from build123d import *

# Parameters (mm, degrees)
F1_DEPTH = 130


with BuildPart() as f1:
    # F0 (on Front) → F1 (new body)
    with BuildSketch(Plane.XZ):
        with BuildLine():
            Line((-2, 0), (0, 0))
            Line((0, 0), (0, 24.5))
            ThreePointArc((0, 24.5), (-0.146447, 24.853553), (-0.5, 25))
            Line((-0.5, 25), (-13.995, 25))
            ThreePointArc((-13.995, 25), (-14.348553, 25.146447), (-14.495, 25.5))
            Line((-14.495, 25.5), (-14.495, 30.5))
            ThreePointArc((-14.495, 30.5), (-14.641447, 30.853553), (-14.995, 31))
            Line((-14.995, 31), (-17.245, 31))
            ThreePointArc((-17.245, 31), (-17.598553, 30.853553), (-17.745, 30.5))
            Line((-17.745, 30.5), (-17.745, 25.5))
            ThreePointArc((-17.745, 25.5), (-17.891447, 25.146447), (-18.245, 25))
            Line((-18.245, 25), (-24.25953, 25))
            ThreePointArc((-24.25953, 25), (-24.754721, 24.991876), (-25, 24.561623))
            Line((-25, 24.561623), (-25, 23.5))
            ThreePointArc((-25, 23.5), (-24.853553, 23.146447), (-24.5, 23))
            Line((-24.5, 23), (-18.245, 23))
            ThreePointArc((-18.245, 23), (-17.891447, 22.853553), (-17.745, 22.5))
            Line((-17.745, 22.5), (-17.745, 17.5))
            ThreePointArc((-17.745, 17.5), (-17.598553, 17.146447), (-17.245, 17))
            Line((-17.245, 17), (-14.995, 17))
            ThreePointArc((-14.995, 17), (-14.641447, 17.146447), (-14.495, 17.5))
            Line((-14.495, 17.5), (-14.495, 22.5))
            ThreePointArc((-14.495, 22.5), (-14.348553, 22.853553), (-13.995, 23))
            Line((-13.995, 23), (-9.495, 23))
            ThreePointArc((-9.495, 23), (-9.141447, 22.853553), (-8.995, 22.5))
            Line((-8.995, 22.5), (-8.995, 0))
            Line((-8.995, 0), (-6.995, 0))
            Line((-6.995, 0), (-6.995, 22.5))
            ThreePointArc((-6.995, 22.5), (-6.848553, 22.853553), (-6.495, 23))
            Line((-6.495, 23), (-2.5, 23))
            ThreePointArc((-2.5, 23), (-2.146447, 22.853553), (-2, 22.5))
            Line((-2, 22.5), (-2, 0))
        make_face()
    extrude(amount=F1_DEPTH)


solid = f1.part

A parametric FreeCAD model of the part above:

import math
import FreeCAD as App
import Part
import Sketcher

doc = App.newDocument("Part")
params = doc.addObject("Spreadsheet::Sheet", "Params")
for row, (alias, value) in enumerate([
    ("sketch1_radius", "0.500001 mm"),
    ("sketch1_width", "2 mm"),
    ("sketch1_height", "5 mm"),
    ("sketch1_width2", "4.5 mm"),
    ("sketch1_height2", "24.5 mm"),
    ("pad1_length", "130 mm"),
], start=1):
    params.set(f"A{row}", alias)
    params.set(f"B{row}", "=" + value)
    params.setAlias(f"B{row}", alias)

body = doc.addObject("PartDesign::Body", "Body")

sketch1 = body.newObject("Sketcher::SketchObject", "Sketch")
sketch1.AttachmentSupport = (doc.getObject("XZ_Plane"), [""])
sketch1.MapMode = "FlatFace"
sketch1.addGeometry([
    Part.LineSegment(App.Vector(-2, 0, 0), App.Vector(0, 0, 0)),
    Part.LineSegment(App.Vector(0, 0, 0), App.Vector(0, 24.5, 0)),
    Part.ArcOfCircle(Part.Circle(App.Vector(-0.500001, 24.499999, 0), App.Vector(0, 0, 1), 0.500001), math.radians(0.000153), math.radians(89.999847)),
    Part.LineSegment(App.Vector(-0.5, 25, 0), App.Vector(-13.995, 25, 0)),
    Part.ArcOfCircle(Part.Circle(App.Vector(-13.994999, 25.500001, 0), App.Vector(0, 0, 1), 0.500001), math.radians(-179.999847), math.radians(-90.000153)),
    Part.LineSegment(App.Vector(-14.495, 25.5, 0), App.Vector(-14.495, 30.5, 0)),
    Part.ArcOfCircle(Part.Circle(App.Vector(-14.995001, 30.499999, 0), App.Vector(0, 0, 1), 0.500001), math.radians(0.000153), math.radians(89.999847)),
    Part.LineSegment(App.Vector(-14.995, 31, 0), App.Vector(-17.245, 31, 0)),
    Part.ArcOfCircle(Part.Circle(App.Vector(-17.244999, 30.499999, 0), App.Vector(0, 0, 1), 0.500001), math.radians(90.000153), math.radians(179.999847)),
    Part.LineSegment(App.Vector(-17.745, 30.5, 0), App.Vector(-17.745, 25.5, 0)),
    Part.ArcOfCircle(Part.Circle(App.Vector(-18.245001, 25.500001, 0), App.Vector(0, 0, 1), 0.500001), math.radians(-89.999847), math.radians(-0.000153)),
    Part.LineSegment(App.Vector(-18.245, 25, 0), App.Vector(-24.25953, 25, 0)),
    Part.ArcOfCircle(Part.Circle(App.Vector(-24.5, 24.561624, 0), App.Vector(0, 0, 1), 0.5), math.radians(61.253143), math.radians(180.000073)),
    Part.LineSegment(App.Vector(-25, 24.561623, 0), App.Vector(-25, 23.5, 0)),
    Part.ArcOfCircle(Part.Circle(App.Vector(-24.499999, 23.500001, 0), App.Vector(0, 0, 1), 0.500001), math.radians(-179.999847), math.radians(-90.000153)),
    Part.LineSegment(App.Vector(-24.5, 23, 0), App.Vector(-18.245, 23, 0)),
    Part.ArcOfCircle(Part.Circle(App.Vector(-18.245001, 22.499999, 0), App.Vector(0, 0, 1), 0.500001), math.radians(0.000153), math.radians(89.999847)),
    Part.LineSegment(App.Vector(-17.745, 22.5, 0), App.Vector(-17.745, 17.5, 0)),
    Part.ArcOfCircle(Part.Circle(App.Vector(-17.244999, 17.500001, 0), App.Vector(0, 0, 1), 0.500001), math.radians(-179.999847), math.radians(-90.000153)),
    Part.LineSegment(App.Vector(-17.245, 17, 0), App.Vector(-14.995, 17, 0)),
    Part.ArcOfCircle(Part.Circle(App.Vector(-14.995001, 17.500001, 0), App.Vector(0, 0, 1), 0.500001), math.radians(-89.999847), math.radians(-0.000153)),
    Part.LineSegment(App.Vector(-14.495, 17.5, 0), App.Vector(-14.495, 22.5, 0)),
    Part.ArcOfCircle(Part.Circle(App.Vector(-13.994999, 22.499999, 0), App.Vector(0, 0, 1), 0.500001), math.radians(90.000153), math.radians(179.999847)),
    Part.LineSegment(App.Vector(-13.995, 23, 0), App.Vector(-9.495, 23, 0)),
    Part.ArcOfCircle(Part.Circle(App.Vector(-9.495001, 22.499999, 0), App.Vector(0, 0, 1), 0.500001), math.radians(0.000153), math.radians(89.999847)),
    Part.LineSegment(App.Vector(-8.995, 22.5, 0), App.Vector(-8.995, 0, 0)),
    Part.LineSegment(App.Vector(-8.995, 0, 0), App.Vector(-6.995, 0, 0)),
    Part.LineSegment(App.Vector(-6.995, 0, 0), App.Vector(-6.995, 22.5, 0)),
    Part.ArcOfCircle(Part.Circle(App.Vector(-6.494999, 22.499999, 0), App.Vector(0, 0, 1), 0.500001), math.radians(90.000153), math.radians(179.999847)),
    Part.LineSegment(App.Vector(-6.495, 23, 0), App.Vector(-2.5, 23, 0)),
    Part.ArcOfCircle(Part.Circle(App.Vector(-2.500001, 22.499999, 0), App.Vector(0, 0, 1), 0.500001), math.radians(0.000153), math.radians(89.999847)),
    Part.LineSegment(App.Vector(-2, 22.5, 0), App.Vector(-2, 0, 0)),
], False)
sketch1.addConstraint([
    Sketcher.Constraint("Coincident", 0, 2, 1, 1),
    Sketcher.Constraint("Coincident", 1, 2, 2, 1),
    Sketcher.Constraint("Coincident", 2, 2, 3, 1),
    Sketcher.Constraint("Coincident", 3, 2, 4, 2),
    Sketcher.Constraint("Coincident", 4, 1, 5, 1),
    Sketcher.Constraint("Coincident", 5, 2, 6, 1),
    Sketcher.Constraint("Coincident", 6, 2, 7, 1),
    Sketcher.Constraint("Coincident", 7, 2, 8, 1),
    Sketcher.Constraint("Coincident", 8, 2, 9, 1),
    Sketcher.Constraint("Coincident", 9, 2, 10, 2),
    Sketcher.Constraint("Coincident", 10, 1, 11, 1),
    Sketcher.Constraint("Coincident", 11, 2, 12, 1),
    Sketcher.Constraint("Tangent", 12, 2, 13, 1),
    Sketcher.Constraint("Coincident", 13, 2, 14, 1),
    Sketcher.Constraint("Coincident", 14, 2, 15, 1),
    Sketcher.Constraint("Coincident", 15, 2, 16, 2),
    Sketcher.Constraint("Coincident", 16, 1, 17, 1),
    Sketcher.Constraint("Coincident", 17, 2, 18, 1),
    Sketcher.Constraint("Coincident", 18, 2, 19, 1),
    Sketcher.Constraint("Coincident", 19, 2, 20, 1),
    Sketcher.Constraint("Coincident", 20, 2, 21, 1),
    Sketcher.Constraint("Coincident", 21, 2, 22, 2),
    Sketcher.Constraint("Coincident", 22, 1, 23, 1),
    Sketcher.Constraint("Coincident", 23, 2, 24, 2),
    Sketcher.Constraint("Coincident", 24, 1, 25, 1),
    Sketcher.Constraint("Coincident", 25, 2, 26, 1),
    Sketcher.Constraint("Coincident", 26, 2, 27, 1),
    Sketcher.Constraint("Coincident", 27, 2, 28, 2),
    Sketcher.Constraint("Coincident", 28, 1, 29, 1),
    Sketcher.Constraint("Coincident", 29, 2, 30, 2),
    Sketcher.Constraint("Coincident", 30, 1, 31, 1),
    Sketcher.Constraint("Coincident", 31, 2, 0, 1),
    Sketcher.Constraint("Horizontal", 0),
    Sketcher.Constraint("Vertical", 1),
    Sketcher.Constraint("Horizontal", 3),
    Sketcher.Constraint("Vertical", 5),
    Sketcher.Constraint("Horizontal", 7),
    Sketcher.Constraint("Vertical", 9),
    Sketcher.Constraint("Horizontal", 11),
    Sketcher.Constraint("Vertical", 13),
    Sketcher.Constraint("Horizontal", 15),
    Sketcher.Constraint("Vertical", 17),
    Sketcher.Constraint("Horizontal", 19),
    Sketcher.Constraint("Vertical", 21),
    Sketcher.Constraint("Horizontal", 23),
    Sketcher.Constraint("Vertical", 25),
    Sketcher.Constraint("Horizontal", 26),
    Sketcher.Constraint("Vertical", 27),
    Sketcher.Constraint("Horizontal", 29),
    Sketcher.Constraint("Vertical", 31),
    Sketcher.Constraint("Coincident", 0, 2, -1, 1),
    Sketcher.Constraint("Equal", 2, 4),
    Sketcher.Constraint("Equal", 4, 6),
    Sketcher.Constraint("Equal", 6, 8),
    Sketcher.Constraint("Equal", 8, 10),
    Sketcher.Constraint("Equal", 10, 12),
    Sketcher.Constraint("Equal", 12, 14),
    Sketcher.Constraint("Equal", 14, 16),
    Sketcher.Constraint("Equal", 16, 18),
    Sketcher.Constraint("Equal", 18, 20),
    Sketcher.Constraint("Equal", 20, 22),
    Sketcher.Constraint("Equal", 22, 24),
    Sketcher.Constraint("Equal", 24, 28),
    Sketcher.Constraint("Equal", 28, 30),
    Sketcher.Constraint("PointOnObject", 25, 2, -1),
    Sketcher.Constraint("Horizontal", 4, 3, 10, 3),
    Sketcher.Constraint("Horizontal", 16, 3, 22, 3),
    Sketcher.Constraint("Horizontal", 24, 3, 28, 3),
    Sketcher.Constraint("Horizontal", 2, 3, 1, 2),
    Sketcher.Constraint("Horizontal", 10, 3, 4, 1),
    Sketcher.Constraint("Horizontal", 8, 3, 5, 2),
    Sketcher.Constraint("Horizontal", 5, 2, 8, 2),
    Sketcher.Constraint("Horizontal", 4, 1, 9, 2),
    Sketcher.Constraint("Horizontal", 14, 3, 13, 2),
    Sketcher.Constraint("Horizontal", 30, 3, 16, 1),
    Sketcher.Constraint("Horizontal", 20, 3, 17, 2),
    Sketcher.Constraint("Horizontal", 17, 2, 20, 2),
    Sketcher.Constraint("Horizontal", 16, 1, 21, 2),
    Sketcher.Constraint("Horizontal", 21, 2, 24, 1),
    Sketcher.Constraint("Horizontal", 24, 1, 27, 2),
    Sketcher.Constraint("Horizontal", 27, 2, 30, 1),
    Sketcher.Constraint("Vertical", 10, 3, 16, 3),
    Sketcher.Constraint("Vertical", 6, 3, 20, 3),
    Sketcher.Constraint("Vertical", 22, 3, 3, 2),
    Sketcher.Constraint("Vertical", 20, 3, 6, 2),
    Sketcher.Constraint("Vertical", 18, 3, 7, 2),
    Sketcher.Constraint("Vertical", 16, 3, 10, 1),
    Sketcher.Constraint("Vertical", 12, 3, 14, 2),
    Sketcher.Constraint("Vertical", 10, 1, 15, 2),
    Sketcher.Constraint("Vertical", 7, 2, 18, 2),
    Sketcher.Constraint("Vertical", 6, 2, 19, 2),
    Sketcher.Constraint("Vertical", 3, 2, 22, 1),
    Sketcher.Constraint("Vertical", 24, 3, 23, 2),
    Sketcher.Constraint("Vertical", 30, 3, 29, 2),
    Sketcher.Constraint("Equal", 0, 26),
    Sketcher.Constraint("Equal", 9, 17),
    Sketcher.Constraint("Radius", 2, 0.500001),
    Sketcher.Constraint("DistanceX", 0, 1, 0, 2, 2.0),
    Sketcher.Constraint("DistanceY", 5, 1, 5, 2, 5.0),
    Sketcher.Constraint("DistanceX", 23, 1, 23, 2, 4.5),
    Sketcher.Constraint("DistanceY", 1, 1, 1, 2, 24.5),
    Sketcher.Constraint("DistanceY", 25, 2, 25, 1, 22.5),
    Sketcher.Constraint("DistanceX", 12, 2, -1, 1, 25.0),
    Sketcher.Constraint("DistanceX", 30, 3, 2, 2, 2.000001),
    Sketcher.Constraint("DistanceX", 23, 2, 28, 1, 3.0),
    Sketcher.Constraint("DistanceX", 7, 2, 7, 1, 2.25),
    Sketcher.Constraint("DistanceX", 3, 2, 3, 1, 13.495),
    Sketcher.Constraint("DistanceX", 11, 2, 11, 1, 6.01453),
])
sketch1.setExpression("Constraints[96]", "Params.sketch1_radius")
sketch1.setExpression("Constraints[97]", "Params.sketch1_width")
sketch1.setExpression("Constraints[98]", "Params.sketch1_height")
sketch1.setExpression("Constraints[99]", "Params.sketch1_width2")
sketch1.setExpression("Constraints[100]", "Params.sketch1_height2")
pad1 = body.newObject("PartDesign::Pad", "Pad")
pad1.Profile = sketch1
pad1.setExpression("Length", "Params.pad1_length")

doc.recompute()
